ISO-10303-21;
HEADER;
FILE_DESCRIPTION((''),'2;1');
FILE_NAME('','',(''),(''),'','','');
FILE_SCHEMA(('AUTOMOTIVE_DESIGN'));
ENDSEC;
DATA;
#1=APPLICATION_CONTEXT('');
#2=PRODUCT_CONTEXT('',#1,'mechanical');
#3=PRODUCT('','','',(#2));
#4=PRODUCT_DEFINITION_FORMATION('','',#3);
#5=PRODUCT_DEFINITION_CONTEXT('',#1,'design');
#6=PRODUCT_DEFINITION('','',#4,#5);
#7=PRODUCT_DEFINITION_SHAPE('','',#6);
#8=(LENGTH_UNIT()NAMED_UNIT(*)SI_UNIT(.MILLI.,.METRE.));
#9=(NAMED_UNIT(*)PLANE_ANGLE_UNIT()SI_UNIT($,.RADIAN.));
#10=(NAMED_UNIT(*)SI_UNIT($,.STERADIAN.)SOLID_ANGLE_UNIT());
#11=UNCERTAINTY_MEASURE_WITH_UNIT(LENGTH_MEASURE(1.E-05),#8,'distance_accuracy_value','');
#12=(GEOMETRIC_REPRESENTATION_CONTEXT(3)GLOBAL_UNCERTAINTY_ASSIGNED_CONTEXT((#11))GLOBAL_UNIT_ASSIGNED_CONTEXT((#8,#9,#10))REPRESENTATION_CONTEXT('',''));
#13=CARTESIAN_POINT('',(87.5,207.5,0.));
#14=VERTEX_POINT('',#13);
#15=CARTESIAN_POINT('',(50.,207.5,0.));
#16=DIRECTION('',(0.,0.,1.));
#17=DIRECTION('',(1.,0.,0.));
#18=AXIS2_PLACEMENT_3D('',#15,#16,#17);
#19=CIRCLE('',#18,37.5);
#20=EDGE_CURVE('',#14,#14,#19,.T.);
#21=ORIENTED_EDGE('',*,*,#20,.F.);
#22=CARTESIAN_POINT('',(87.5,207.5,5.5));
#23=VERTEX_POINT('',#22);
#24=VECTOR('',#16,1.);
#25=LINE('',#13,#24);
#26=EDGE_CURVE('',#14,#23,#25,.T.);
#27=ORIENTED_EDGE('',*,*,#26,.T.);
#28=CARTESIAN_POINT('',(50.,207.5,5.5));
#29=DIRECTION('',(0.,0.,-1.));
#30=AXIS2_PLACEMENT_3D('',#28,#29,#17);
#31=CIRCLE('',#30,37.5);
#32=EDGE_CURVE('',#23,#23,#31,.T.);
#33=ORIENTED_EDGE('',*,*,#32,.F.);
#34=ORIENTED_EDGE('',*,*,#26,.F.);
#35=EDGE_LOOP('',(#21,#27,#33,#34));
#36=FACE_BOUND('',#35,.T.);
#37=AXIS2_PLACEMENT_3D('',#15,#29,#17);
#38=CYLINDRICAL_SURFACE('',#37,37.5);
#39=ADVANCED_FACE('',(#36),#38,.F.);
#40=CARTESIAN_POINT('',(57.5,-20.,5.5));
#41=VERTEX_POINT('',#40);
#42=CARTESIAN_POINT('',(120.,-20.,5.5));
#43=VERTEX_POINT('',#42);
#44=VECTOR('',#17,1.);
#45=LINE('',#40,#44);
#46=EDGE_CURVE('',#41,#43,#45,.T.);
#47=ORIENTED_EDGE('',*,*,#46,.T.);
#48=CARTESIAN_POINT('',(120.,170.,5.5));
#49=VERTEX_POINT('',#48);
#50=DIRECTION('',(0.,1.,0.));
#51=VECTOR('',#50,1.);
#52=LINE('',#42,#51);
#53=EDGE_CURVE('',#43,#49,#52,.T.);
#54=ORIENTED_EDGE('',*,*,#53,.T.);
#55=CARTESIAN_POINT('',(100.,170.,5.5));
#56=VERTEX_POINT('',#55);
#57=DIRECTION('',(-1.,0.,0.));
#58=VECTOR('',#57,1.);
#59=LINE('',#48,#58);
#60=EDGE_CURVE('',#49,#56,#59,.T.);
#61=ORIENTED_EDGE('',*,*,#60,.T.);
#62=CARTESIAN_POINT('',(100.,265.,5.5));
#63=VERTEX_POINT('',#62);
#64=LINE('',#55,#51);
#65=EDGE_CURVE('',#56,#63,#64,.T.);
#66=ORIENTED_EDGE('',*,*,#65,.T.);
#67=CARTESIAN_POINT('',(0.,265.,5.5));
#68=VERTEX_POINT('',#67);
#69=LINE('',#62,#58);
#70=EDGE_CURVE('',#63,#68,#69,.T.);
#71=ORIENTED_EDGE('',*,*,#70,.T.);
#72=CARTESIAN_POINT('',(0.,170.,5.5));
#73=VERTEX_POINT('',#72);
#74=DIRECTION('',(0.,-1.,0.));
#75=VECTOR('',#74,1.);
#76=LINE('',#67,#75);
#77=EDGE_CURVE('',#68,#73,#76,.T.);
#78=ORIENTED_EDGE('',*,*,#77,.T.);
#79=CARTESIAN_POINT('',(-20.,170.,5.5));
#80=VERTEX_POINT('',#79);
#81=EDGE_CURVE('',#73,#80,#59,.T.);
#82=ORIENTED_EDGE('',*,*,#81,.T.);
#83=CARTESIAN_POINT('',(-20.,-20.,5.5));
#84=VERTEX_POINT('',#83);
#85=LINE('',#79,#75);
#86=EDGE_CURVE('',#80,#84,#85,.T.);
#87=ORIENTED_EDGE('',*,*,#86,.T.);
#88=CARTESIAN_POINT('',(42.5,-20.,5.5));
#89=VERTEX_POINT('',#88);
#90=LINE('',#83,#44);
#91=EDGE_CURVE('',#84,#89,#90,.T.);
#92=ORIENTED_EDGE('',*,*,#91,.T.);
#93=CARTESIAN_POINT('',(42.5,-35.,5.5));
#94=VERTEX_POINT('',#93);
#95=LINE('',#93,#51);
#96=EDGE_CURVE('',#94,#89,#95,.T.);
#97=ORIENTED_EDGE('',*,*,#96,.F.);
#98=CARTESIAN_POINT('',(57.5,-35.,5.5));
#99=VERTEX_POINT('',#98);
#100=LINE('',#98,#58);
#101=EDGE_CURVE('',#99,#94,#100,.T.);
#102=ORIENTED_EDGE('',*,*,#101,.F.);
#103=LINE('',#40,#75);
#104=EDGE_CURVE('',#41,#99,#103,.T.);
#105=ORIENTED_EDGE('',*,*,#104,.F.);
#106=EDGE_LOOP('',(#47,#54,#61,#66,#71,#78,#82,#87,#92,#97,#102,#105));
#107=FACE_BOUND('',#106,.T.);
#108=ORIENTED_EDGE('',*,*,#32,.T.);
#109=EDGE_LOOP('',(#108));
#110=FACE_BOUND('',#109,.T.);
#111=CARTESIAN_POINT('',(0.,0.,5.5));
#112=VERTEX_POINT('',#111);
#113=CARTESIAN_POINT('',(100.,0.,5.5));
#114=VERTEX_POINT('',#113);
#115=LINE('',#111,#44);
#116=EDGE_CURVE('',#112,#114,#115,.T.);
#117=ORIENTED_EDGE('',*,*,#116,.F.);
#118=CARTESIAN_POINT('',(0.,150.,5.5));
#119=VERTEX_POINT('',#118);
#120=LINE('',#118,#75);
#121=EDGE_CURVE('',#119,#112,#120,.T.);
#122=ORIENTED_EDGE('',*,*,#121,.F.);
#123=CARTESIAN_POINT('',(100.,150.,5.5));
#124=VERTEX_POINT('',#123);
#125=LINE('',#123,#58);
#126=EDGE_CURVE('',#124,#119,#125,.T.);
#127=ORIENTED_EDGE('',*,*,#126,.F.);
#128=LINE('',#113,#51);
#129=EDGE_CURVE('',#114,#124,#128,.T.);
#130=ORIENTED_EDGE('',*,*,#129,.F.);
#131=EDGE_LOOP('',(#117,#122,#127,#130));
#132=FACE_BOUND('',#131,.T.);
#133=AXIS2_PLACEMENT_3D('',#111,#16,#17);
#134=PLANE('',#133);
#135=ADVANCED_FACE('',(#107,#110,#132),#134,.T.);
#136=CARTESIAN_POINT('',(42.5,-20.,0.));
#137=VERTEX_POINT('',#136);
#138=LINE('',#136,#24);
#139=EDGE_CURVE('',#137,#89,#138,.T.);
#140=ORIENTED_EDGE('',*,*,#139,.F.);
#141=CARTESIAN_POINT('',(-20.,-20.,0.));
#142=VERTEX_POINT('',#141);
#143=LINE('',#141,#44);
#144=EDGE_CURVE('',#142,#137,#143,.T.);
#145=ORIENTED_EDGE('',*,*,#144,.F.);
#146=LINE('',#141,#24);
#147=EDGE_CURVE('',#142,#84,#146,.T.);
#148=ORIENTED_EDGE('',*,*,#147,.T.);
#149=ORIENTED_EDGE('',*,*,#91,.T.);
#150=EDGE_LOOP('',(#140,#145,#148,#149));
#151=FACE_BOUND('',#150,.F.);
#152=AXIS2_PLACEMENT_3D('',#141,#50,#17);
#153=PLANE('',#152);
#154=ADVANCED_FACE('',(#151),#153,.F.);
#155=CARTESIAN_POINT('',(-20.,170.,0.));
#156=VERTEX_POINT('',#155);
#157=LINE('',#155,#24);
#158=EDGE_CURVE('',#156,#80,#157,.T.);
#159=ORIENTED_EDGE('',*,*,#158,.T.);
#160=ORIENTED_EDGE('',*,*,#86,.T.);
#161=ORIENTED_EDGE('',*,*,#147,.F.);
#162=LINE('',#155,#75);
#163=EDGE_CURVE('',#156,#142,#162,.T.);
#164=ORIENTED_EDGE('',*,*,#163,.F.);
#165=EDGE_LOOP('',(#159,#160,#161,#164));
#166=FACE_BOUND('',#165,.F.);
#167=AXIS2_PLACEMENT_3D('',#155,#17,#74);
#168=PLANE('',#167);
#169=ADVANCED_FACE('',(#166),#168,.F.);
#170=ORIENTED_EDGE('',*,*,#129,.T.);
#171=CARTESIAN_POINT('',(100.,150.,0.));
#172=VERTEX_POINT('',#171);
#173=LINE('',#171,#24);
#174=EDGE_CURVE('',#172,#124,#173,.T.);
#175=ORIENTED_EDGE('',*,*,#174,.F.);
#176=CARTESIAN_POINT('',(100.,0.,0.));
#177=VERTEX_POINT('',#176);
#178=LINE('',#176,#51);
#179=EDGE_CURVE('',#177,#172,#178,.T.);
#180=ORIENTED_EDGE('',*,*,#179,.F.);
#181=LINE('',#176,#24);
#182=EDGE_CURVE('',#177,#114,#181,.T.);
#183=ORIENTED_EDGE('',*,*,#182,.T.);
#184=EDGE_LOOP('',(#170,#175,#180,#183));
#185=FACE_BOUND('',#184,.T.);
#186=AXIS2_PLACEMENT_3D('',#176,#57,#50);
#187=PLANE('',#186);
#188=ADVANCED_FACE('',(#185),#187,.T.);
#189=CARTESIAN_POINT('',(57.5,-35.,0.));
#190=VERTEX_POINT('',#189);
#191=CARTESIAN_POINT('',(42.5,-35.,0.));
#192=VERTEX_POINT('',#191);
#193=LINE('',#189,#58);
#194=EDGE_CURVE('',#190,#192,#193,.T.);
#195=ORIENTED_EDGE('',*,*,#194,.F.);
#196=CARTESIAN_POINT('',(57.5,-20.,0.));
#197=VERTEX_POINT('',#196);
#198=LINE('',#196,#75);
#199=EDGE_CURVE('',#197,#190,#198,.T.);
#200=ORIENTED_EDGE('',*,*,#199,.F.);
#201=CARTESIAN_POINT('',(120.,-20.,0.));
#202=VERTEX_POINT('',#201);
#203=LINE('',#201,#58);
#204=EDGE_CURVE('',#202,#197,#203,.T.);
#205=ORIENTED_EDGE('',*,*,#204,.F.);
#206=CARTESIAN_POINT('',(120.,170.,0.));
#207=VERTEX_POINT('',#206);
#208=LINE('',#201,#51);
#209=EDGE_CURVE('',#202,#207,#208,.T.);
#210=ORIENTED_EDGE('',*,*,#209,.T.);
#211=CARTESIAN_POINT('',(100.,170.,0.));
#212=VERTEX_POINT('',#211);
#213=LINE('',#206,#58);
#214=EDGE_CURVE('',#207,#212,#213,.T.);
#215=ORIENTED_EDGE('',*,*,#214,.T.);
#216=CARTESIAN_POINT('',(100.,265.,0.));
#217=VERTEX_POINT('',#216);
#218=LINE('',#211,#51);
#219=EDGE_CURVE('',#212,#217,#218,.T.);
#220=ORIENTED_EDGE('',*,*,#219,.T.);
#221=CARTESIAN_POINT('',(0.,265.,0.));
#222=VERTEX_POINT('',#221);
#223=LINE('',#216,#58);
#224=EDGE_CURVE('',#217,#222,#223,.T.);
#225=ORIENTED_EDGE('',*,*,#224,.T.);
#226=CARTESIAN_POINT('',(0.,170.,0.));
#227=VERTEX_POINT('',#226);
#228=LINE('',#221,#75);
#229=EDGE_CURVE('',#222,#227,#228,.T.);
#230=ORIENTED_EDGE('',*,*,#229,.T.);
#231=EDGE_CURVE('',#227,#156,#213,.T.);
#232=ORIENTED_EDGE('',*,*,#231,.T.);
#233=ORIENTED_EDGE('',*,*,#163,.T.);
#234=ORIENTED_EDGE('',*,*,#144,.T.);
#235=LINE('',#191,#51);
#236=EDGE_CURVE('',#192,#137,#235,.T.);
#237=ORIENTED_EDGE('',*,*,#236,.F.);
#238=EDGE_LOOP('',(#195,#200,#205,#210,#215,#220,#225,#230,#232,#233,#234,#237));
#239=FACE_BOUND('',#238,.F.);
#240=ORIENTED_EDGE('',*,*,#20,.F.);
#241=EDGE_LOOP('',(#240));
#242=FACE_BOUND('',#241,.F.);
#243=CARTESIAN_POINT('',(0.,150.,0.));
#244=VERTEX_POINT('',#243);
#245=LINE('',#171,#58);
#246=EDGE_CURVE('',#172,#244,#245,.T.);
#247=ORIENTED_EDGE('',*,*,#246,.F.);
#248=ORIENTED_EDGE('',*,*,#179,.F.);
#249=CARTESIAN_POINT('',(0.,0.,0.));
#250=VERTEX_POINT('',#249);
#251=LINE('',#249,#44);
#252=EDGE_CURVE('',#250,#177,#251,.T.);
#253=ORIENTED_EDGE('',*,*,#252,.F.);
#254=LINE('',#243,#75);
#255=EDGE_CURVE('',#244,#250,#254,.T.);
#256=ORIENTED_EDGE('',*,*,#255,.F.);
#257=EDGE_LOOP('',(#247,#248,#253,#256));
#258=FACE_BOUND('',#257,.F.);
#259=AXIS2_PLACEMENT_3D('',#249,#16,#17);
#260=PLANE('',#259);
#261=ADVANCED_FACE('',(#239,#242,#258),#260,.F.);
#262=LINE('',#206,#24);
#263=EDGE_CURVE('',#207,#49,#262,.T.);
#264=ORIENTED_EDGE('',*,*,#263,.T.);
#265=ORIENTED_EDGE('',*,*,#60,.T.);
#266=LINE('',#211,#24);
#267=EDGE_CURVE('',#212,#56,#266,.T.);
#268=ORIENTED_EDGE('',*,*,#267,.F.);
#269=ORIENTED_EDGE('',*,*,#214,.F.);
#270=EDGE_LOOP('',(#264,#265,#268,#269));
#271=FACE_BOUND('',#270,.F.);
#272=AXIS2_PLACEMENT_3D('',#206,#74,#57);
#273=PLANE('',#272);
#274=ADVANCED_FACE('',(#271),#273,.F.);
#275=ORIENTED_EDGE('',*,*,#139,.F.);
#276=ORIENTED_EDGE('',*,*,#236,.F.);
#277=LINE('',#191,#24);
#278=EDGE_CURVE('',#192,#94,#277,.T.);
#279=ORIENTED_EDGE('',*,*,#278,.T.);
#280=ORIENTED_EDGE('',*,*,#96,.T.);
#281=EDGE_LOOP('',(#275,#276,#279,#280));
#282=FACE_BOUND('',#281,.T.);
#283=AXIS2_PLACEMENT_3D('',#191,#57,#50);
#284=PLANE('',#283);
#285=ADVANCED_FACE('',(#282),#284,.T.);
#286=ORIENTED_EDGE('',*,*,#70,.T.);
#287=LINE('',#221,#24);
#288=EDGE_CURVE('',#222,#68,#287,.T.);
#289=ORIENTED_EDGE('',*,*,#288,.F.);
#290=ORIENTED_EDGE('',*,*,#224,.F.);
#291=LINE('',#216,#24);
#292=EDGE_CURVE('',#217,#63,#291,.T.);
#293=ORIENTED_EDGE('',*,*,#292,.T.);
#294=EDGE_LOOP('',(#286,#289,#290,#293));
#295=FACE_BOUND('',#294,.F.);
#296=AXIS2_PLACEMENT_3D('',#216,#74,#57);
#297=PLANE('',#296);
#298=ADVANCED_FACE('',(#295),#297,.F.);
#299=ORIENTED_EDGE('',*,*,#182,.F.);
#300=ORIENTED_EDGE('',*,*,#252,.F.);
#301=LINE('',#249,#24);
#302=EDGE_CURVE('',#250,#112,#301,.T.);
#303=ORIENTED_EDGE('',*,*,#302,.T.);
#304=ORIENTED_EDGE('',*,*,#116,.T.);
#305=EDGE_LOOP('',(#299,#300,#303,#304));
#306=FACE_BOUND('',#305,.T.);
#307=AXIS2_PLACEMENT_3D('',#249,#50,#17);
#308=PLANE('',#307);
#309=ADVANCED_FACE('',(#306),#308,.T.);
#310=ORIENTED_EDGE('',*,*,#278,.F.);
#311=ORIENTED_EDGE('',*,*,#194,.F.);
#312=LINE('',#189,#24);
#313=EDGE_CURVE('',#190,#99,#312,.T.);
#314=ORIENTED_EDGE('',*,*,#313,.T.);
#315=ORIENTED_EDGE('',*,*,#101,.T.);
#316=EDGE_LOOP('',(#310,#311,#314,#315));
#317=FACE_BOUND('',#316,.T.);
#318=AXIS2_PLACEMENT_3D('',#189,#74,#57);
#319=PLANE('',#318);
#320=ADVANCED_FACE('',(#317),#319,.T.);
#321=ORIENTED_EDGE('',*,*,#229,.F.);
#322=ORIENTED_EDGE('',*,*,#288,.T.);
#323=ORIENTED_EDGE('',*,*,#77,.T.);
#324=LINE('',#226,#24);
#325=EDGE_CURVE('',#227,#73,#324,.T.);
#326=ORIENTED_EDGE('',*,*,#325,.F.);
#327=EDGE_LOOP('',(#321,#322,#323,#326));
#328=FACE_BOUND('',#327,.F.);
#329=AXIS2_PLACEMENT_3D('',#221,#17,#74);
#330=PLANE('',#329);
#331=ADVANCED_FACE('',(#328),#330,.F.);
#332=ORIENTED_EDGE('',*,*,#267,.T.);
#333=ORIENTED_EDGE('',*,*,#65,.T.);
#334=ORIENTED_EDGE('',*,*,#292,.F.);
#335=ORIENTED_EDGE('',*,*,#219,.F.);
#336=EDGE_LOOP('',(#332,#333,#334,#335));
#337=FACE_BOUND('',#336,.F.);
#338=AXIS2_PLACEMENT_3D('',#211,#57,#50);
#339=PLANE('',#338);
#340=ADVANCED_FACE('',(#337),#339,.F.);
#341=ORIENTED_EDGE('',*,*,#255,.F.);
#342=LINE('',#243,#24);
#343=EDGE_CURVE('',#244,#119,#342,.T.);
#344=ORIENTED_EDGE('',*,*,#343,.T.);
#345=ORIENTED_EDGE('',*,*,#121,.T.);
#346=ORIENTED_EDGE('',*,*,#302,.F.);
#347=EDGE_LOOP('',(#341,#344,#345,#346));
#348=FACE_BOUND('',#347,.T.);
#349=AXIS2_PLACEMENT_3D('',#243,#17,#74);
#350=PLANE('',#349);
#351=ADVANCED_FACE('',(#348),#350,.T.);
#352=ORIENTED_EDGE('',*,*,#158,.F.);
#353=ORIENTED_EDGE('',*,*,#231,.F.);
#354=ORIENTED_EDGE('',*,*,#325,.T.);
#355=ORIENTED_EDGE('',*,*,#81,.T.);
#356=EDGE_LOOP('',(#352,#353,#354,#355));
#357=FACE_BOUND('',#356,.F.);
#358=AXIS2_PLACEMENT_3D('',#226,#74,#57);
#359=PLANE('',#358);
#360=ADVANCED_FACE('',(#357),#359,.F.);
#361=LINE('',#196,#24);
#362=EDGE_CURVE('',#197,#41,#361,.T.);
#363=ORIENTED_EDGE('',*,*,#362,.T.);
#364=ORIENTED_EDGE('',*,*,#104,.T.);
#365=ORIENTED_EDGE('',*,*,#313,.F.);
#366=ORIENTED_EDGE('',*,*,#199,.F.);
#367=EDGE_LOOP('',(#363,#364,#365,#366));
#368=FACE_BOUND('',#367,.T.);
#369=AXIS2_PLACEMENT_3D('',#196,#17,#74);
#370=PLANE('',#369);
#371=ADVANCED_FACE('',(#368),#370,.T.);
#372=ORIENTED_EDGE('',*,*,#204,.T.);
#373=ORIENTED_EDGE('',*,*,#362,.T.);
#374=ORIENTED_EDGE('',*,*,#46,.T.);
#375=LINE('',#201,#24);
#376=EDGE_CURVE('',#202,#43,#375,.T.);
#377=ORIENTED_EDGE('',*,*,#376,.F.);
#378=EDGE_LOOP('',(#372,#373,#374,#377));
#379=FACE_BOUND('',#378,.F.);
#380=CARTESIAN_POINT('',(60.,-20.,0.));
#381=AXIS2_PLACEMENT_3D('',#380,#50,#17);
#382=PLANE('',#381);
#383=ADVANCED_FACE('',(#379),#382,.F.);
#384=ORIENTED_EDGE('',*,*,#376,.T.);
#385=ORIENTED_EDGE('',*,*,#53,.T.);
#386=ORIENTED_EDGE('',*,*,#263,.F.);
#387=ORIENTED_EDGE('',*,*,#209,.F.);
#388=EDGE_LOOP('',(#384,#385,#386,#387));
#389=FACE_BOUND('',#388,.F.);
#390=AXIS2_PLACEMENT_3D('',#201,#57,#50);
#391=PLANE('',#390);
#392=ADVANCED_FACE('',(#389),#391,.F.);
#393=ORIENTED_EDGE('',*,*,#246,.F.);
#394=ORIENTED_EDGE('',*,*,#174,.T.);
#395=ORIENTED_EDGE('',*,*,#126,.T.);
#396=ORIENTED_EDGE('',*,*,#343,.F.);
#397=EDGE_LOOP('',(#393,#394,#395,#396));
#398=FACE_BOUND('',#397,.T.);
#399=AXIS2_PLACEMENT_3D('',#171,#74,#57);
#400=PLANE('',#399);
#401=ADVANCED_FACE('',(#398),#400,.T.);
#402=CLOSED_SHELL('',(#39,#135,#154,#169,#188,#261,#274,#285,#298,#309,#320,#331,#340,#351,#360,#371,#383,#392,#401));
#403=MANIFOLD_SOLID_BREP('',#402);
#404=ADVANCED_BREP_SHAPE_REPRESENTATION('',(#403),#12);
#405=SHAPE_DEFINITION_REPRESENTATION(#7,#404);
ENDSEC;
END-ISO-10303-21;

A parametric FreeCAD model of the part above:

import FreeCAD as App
import Part
import Sketcher

doc = App.newDocument("Part")
body = doc.addObject("PartDesign::Body", "Body")

# Sketch on XY plane
sketch1 = body.newObject("Sketcher::SketchObject", "Sketch")
sketch1.AttachmentSupport = (doc.getObject("XY_Plane"), [""])
sketch1.MapMode = "FlatFace"
sketch1.addGeometry([
    Part.LineSegment(App.Vector(0, 265, 0), App.Vector(0, 170, 0)),  # 0
    Part.LineSegment(App.Vector(0, 170, 0), App.Vector(-20, 170, 0)),  # 1
    Part.LineSegment(App.Vector(-20, 170, 0), App.Vector(-20, -20, 0)),  # 2
    Part.LineSegment(App.Vector(-20, -20, 0), App.Vector(42.5, -20, 0)),  # 3
    Part.LineSegment(App.Vector(42.5, -20, 0), App.Vector(42.5, -35, 0)),  # 4
    Part.LineSegment(App.Vector(42.5, -35, 0), App.Vector(57.5, -35, 0)),  # 5
    Part.LineSegment(App.Vector(57.5, -35, 0), App.Vector(57.5, -20, 0)),  # 6
    Part.LineSegment(App.Vector(57.5, -20, 0), App.Vector(120, -20, 0)),  # 7
    Part.LineSegment(App.Vector(120, -20, 0), App.Vector(120, 170, 0)),  # 8
    Part.LineSegment(App.Vector(120, 170, 0), App.Vector(100, 170, 0)),  # 9
    Part.LineSegment(App.Vector(100, 170, 0), App.Vector(100, 265, 0)),  # 10
    Part.LineSegment(App.Vector(100, 265, 0), App.Vector(0, 265, 0)),  # 11
    Part.Circle(App.Vector(50, 207.5, 0), App.Vector(0, 0, 1), 37.5),  # 12
    Part.LineSegment(App.Vector(0, 150, 0), App.Vector(100, 150, 0)),  # 13
    Part.LineSegment(App.Vector(100, 150, 0), App.Vector(100, 0, 0)),  # 14
    Part.LineSegment(App.Vector(100, 0, 0), App.Vector(0, 0, 0)),  # 15
    Part.LineSegment(App.Vector(0, 0, 0), App.Vector(0, 150, 0)),  # 16
], False)
sketch1.addConstraint([
    Sketcher.Constraint("Coincident", 0, 2, 1, 1),
    Sketcher.Constraint("Coincident", 1, 2, 2, 1),
    Sketcher.Constraint("Coincident", 2, 2, 3, 1),
    Sketcher.Constraint("Coincident", 3, 2, 4, 1),
    Sketcher.Constraint("Coincident", 4, 2, 5, 1),
    Sketcher.Constraint("Coincident", 5, 2, 6, 1),
    Sketcher.Constraint("Coincident", 6, 2, 7, 1),
    Sketcher.Constraint("Coincident", 7, 2, 8, 1),
    Sketcher.Constraint("Coincident", 8, 2, 9, 1),
    Sketcher.Constraint("Coincident", 9, 2, 10, 1),
    Sketcher.Constraint("Coincident", 10, 2, 11, 1),
    Sketcher.Constraint("Coincident", 11, 2, 0, 1),
    Sketcher.Constraint("Coincident", 13, 2, 14, 1),
    Sketcher.Constraint("Coincident", 14, 2, 15, 1),
    Sketcher.Constraint("Coincident", 15, 2, 16, 1),
    Sketcher.Constraint("Coincident", 16, 2, 13, 1),
    Sketcher.Constraint("Vertical", 0),
    Sketcher.Constraint("Horizontal", 1),
    Sketcher.Constraint("Vertical", 2),
    Sketcher.Constraint("Horizontal", 3),
    Sketcher.Constraint("Vertical", 4),
    Sketcher.Constraint("Horizontal", 5),
    Sketcher.Constraint("Vertical", 6),
    Sketcher.Constraint("Horizontal", 7),
    Sketcher.Constraint("Vertical", 8),
    Sketcher.Constraint("Horizontal", 9),
    Sketcher.Constraint("Vertical", 10),
    Sketcher.Constraint("Horizontal", 11),
    Sketcher.Constraint("Horizontal", 13),
    Sketcher.Constraint("Vertical", 14),
    Sketcher.Constraint("Horizontal", 15),
    Sketcher.Constraint("Vertical", 16),
    Sketcher.Constraint("Coincident", 15, 2, -1, 1),
    Sketcher.Constraint("PointOnObject", 0, 2, -2),
    Sketcher.Constraint("Horizontal", 3, 2, 6, 2),
    Sketcher.Constraint("Horizontal", 1, 2, 8, 2),
    Sketcher.Constraint("Vertical", 10, 2, 13, 2),
    Sketcher.Constraint("Equal", 3, 7),
    Sketcher.Constraint("Equal", 1, 9),
    Sketcher.Constraint("Equal", 5, 4),
    Sketcher.Constraint("Diameter", 12, 75.0),
    Sketcher.Constraint("DistanceX", 5, 1, 5, 2, 15.0),
    Sketcher.Constraint("DistanceY", 0, 2, 0, 1, 95.0),
    Sketcher.Constraint("DistanceX", 2, 2, 7, 2, 140.0),
    Sketcher.Constraint("DistanceX", 1, 2, 1, 1, 20.0),
    Sketcher.Constraint("DistanceY", 2, 2, 2, 1, 190.0),
    Sketcher.Constraint("DistanceY", 14, 2, 14, 1, 150.0),
    Sketcher.Constraint("DistanceX", -1, 1, 12, 3, 50.0),
    Sketcher.Constraint("DistanceY", -1, 1, 0, 2, 170.0),
    Sketcher.Constraint("DistanceY", -1, 1, 12, 3, 207.5),
])
pad1 = body.newObject("PartDesign::Pad", "Pad")
pad1.Profile = sketch1
pad1.Length = 5.5

doc.recompute()
